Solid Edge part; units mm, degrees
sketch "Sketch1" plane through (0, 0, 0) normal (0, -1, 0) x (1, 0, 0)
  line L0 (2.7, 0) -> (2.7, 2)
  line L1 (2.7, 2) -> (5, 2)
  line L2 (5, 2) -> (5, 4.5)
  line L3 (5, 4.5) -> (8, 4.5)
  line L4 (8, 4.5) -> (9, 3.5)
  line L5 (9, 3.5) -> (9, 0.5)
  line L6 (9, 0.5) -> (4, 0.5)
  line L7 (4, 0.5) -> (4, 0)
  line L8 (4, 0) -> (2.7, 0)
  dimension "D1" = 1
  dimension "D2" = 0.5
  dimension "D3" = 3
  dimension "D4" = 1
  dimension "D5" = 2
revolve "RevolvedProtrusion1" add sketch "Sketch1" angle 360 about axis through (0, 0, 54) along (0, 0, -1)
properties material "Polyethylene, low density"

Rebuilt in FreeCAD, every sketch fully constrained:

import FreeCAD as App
import Part
import Sketcher

V = App.Vector


def add_polygon(sketch, points):
    """Adds a closed chain of lines whose ends are joined by coincident constraints."""
    first, n = sketch.GeometryCount, len(points)
    for a, b in zip(points, points[1:] + points[:1]):
        sketch.addGeometry(Part.LineSegment(App.Vector(*a, 0), App.Vector(*b, 0)), False)
    for i in range(n):
        sketch.addConstraint(Sketcher.Constraint("Coincident", first + i, 2, first + (i + 1) % n, 1))

doc = App.newDocument("Part")
body = doc.addObject("PartDesign::Body", "Body")

sketch1 = body.newObject("Sketcher::SketchObject", "Sketch")
sketch1.AttachmentSupport = (doc.getObject("XZ_Plane"), [""])
sketch1.MapMode = "FlatFace"
add_polygon(sketch1, [(2.7, 2), (2.7, 0), (4, 0), (4, 0.5), (9, 0.5), (9, 3.5), (8, 4.5), (5, 4.5), (5, 2)])
sketch1.addConstraint([
    Sketcher.Constraint("Vertical", 0),
    Sketcher.Constraint("Horizontal", 1),
    Sketcher.Constraint("Vertical", 2),
    Sketcher.Constraint("Horizontal", 3),
    Sketcher.Constraint("Vertical", 4),
    Sketcher.Constraint("Horizontal", 6),
    Sketcher.Constraint("Vertical", 7),
    Sketcher.Constraint("Horizontal", 8),
    Sketcher.Constraint("PointOnObject", 0, 2, -1),
    Sketcher.Constraint("Equal", 6, 4),
    Sketcher.Constraint("DistanceX", -1, 1, 1, 2, 4.0),
    Sketcher.Constraint("DistanceX", -1, 1, 3, 2, 9.0),
    Sketcher.Constraint("DistanceX", -1, 1, 5, 2, 8.0),
    Sketcher.Constraint("DistanceY", 3, 2, 5, 2, 4.0),
    Sketcher.Constraint("DistanceX", 6, 2, 4, 2, 4.0),
    Sketcher.Constraint("DistanceX", -1, 1, 0, 2, 2.7),
    Sketcher.Constraint("DistanceY", 0, 2, 0, 1, 2.0),
    Sketcher.Constraint("DistanceY", 2, 1, 2, 2, 0.5),
])
revolution = body.newObject("PartDesign::Revolution", "Revolution")
revolution.Profile = sketch1
revolution.ReferenceAxis = (sketch1, ["V_Axis"])
revolution.Angle = 360

doc.recompute()
